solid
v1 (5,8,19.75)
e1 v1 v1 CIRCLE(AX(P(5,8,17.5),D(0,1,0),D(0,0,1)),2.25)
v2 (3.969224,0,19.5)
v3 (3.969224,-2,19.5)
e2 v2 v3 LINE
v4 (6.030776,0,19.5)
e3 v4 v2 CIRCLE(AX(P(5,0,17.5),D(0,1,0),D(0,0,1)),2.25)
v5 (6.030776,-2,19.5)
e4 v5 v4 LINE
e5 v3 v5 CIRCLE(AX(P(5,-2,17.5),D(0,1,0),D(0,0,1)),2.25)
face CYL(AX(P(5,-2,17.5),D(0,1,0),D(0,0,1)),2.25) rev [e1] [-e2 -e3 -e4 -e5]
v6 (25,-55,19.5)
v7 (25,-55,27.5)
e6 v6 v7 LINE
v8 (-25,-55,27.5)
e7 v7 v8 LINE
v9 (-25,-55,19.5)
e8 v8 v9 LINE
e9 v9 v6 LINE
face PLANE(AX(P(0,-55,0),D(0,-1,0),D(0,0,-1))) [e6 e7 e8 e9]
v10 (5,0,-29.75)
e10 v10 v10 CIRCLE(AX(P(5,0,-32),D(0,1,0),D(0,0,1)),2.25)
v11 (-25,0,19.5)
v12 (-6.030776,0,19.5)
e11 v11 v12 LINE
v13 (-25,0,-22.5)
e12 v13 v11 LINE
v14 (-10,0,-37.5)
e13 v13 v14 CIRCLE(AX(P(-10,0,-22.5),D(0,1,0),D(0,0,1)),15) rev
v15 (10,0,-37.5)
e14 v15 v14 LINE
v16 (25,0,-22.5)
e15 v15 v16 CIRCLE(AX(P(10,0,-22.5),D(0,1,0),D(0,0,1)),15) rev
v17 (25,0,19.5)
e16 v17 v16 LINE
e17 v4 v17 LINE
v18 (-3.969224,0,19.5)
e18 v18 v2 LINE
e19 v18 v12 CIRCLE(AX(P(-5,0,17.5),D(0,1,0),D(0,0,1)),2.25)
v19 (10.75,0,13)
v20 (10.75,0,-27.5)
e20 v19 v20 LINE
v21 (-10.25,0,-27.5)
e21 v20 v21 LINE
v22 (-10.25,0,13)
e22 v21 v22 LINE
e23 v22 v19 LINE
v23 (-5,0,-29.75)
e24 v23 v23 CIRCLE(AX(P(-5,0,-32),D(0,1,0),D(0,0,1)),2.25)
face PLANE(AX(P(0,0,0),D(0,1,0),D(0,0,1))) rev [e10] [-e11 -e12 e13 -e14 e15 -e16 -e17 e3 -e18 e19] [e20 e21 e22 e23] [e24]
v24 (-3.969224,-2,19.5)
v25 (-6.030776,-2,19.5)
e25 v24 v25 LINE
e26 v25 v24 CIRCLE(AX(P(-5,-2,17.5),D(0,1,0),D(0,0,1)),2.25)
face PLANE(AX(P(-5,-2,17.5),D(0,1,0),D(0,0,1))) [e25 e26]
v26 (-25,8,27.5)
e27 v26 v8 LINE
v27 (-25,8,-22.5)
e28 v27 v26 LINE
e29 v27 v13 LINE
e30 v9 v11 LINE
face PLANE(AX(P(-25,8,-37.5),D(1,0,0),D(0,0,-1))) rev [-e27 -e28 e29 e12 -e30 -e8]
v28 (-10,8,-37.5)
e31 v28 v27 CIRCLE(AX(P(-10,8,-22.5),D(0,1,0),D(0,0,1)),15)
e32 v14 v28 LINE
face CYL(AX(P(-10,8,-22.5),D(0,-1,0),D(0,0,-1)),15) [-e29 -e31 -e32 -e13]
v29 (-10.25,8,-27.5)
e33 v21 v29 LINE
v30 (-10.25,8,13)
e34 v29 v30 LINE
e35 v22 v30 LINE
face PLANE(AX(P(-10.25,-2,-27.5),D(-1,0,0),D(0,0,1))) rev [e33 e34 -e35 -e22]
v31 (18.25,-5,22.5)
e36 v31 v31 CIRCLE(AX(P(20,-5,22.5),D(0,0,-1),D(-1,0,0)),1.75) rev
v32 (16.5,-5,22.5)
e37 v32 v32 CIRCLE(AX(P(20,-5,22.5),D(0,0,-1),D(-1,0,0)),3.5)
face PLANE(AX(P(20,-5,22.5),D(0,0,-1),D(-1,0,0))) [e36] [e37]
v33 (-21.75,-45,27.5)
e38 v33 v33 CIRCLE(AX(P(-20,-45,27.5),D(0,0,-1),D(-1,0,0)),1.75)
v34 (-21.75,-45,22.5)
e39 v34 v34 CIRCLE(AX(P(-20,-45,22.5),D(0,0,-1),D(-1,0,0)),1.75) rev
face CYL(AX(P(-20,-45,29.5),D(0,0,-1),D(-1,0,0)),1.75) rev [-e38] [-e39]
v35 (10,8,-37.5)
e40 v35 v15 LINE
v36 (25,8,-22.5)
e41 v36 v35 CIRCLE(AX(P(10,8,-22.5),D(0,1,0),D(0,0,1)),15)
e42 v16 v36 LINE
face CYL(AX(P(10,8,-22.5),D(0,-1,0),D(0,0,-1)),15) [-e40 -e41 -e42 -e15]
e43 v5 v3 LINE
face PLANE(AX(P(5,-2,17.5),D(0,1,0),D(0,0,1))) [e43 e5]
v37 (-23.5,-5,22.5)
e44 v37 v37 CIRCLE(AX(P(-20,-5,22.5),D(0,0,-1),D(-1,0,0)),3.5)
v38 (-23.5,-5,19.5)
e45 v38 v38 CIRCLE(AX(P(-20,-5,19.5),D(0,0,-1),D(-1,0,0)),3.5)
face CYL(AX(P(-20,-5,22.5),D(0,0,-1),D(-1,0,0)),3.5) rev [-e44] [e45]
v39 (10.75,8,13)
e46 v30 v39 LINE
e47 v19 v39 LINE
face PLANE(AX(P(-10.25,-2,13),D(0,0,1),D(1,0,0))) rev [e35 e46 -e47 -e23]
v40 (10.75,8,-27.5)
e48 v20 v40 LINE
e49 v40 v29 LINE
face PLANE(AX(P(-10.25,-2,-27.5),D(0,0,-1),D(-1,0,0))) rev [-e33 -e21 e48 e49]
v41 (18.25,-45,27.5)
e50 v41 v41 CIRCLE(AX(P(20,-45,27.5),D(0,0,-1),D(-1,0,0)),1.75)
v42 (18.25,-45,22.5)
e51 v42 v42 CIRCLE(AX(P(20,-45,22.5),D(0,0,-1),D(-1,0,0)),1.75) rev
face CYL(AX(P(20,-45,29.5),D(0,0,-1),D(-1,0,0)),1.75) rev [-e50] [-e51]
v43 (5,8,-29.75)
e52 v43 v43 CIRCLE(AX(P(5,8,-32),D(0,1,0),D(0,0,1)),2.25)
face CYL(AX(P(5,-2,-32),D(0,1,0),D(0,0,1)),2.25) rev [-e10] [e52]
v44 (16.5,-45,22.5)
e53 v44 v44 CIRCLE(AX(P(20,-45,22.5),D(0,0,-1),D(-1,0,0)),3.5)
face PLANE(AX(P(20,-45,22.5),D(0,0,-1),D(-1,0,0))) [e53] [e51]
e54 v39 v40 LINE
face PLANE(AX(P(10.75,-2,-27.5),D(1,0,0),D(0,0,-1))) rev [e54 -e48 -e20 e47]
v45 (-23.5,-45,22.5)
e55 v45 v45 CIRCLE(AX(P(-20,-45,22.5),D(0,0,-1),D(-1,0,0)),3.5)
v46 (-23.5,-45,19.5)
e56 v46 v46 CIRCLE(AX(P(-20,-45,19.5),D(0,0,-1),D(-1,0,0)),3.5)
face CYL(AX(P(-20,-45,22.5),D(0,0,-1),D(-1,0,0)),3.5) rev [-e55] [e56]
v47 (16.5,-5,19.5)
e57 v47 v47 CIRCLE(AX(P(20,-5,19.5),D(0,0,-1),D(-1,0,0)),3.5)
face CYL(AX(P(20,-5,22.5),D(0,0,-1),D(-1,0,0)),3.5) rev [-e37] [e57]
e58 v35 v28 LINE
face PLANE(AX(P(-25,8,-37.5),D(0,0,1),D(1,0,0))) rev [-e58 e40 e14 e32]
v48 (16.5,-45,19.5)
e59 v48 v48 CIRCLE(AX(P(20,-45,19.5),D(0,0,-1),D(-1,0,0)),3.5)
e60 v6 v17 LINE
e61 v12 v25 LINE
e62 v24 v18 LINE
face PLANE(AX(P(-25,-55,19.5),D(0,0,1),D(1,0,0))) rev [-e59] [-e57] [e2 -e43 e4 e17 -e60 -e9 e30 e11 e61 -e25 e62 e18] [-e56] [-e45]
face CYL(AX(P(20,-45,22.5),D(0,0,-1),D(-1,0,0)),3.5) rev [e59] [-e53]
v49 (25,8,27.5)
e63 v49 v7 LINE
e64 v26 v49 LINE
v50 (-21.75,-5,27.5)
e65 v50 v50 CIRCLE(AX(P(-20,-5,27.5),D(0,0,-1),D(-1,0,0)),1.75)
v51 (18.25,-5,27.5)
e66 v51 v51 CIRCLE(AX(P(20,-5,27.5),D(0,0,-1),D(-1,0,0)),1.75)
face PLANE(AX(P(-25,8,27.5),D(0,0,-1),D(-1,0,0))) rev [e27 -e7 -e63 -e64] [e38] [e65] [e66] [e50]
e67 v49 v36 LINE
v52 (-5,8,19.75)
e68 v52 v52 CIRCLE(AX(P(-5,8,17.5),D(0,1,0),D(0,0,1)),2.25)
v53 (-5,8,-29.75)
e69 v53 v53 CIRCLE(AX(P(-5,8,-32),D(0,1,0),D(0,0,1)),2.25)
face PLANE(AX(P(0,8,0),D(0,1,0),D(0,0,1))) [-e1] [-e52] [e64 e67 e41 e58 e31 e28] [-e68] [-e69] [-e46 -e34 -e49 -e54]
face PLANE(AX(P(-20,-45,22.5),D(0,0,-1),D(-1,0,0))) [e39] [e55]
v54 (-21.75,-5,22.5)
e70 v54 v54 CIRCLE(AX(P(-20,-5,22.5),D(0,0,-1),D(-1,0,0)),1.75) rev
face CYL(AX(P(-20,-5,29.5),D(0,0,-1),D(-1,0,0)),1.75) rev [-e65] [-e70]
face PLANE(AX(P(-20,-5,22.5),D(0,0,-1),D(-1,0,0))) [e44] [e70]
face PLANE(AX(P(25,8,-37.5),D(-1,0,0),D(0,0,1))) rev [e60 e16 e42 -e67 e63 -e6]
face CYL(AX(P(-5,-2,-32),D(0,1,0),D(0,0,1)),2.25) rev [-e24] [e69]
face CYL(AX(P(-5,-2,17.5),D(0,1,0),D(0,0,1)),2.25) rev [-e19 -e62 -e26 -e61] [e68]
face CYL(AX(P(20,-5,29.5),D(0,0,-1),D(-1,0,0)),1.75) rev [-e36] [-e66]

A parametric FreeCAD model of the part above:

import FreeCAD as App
import Part
import Sketcher

V = App.Vector


def edges_at(feature, points):
    """Names of the edges that pass closest to the given points."""
    edges = feature.Shape.Edges
    near = lambda p: min(range(len(edges)), key=lambda i: edges[i].distToShape(Part.Vertex(*p))[0])
    return sorted({f"Edge{near(p) + 1}" for p in points})

doc = App.newDocument("Part")
body = doc.addObject("PartDesign::Body", "Body")

# Sketch on XZ plane
sketch1 = body.newObject("Sketcher::SketchObject", "Sketch")
sketch1.AttachmentSupport = (doc.getObject("XZ_Plane"), [""])
sketch1.MapMode = "FlatFace"
sketch1.addGeometry([
    Part.LineSegment(V(-25, -37.5, 0), V(-25, 27.5, 0)),
    Part.LineSegment(V(-25, 27.5, 0), V(25, 27.5, 0)),
    Part.LineSegment(V(25, 27.5, 0), V(25, -37.5, 0)),
    Part.LineSegment(V(25, -37.5, 0), V(-25, -37.5, 0)),
], False)
sketch1.addConstraint([
    Sketcher.Constraint("Coincident", 0, 2, 1, 1),
    Sketcher.Constraint("Coincident", 1, 2, 2, 1),
    Sketcher.Constraint("Coincident", 2, 2, 3, 1),
    Sketcher.Constraint("Coincident", 3, 2, 0, 1),
    Sketcher.Constraint("Vertical", 0),
    Sketcher.Constraint("Horizontal", 1),
    Sketcher.Constraint("Vertical", 2),
    Sketcher.Constraint("Horizontal", 3),
    Sketcher.Constraint("DistanceX", 1, 1, 1, 2, 50.0),
    Sketcher.Constraint("DistanceY", 0, 1, 0, 2, 65.0),
    Sketcher.Constraint("DistanceX", 0, 2, -1, 1, 25.0),
    Sketcher.Constraint("DistanceY", -1, 1, 0, 2, 27.5),
])
pad1 = body.newObject("PartDesign::Pad", "Pad")
pad1.Profile = sketch1
pad1.Length = 8
pad1.Reversed = True

# Sketch on XZ plane
sketch2 = body.newObject("Sketcher::SketchObject", "Sketch001")
sketch2.AttachmentSupport = (doc.getObject("XZ_Plane"), [""])
sketch2.MapMode = "FlatFace"
sketch2.addGeometry([
    Part.LineSegment(V(25, 19.5, 0), V(25, 27.5, 0)),
    Part.LineSegment(V(25, 27.5, 0), V(-25, 27.5, 0)),
    Part.LineSegment(V(-25, 27.5, 0), V(-25, 19.5, 0)),
    Part.LineSegment(V(-25, 19.5, 0), V(25, 19.5, 0)),
], False)
sketch2.addConstraint([
    Sketcher.Constraint("Coincident", 0, 2, 1, 1),
    Sketcher.Constraint("Coincident", 1, 2, 2, 1),
    Sketcher.Constraint("Coincident", 2, 2, 3, 1),
    Sketcher.Constraint("Coincident", 3, 2, 0, 1),
    Sketcher.Constraint("Vertical", 0),
    Sketcher.Constraint("Horizontal", 1),
    Sketcher.Constraint("Vertical", 2),
    Sketcher.Constraint("Horizontal", 3),
    Sketcher.Constraint("DistanceX", 1, 2, 1, 1, 50.0),
    Sketcher.Constraint("DistanceY", 0, 1, 0, 2, 8.0),
    Sketcher.Constraint("DistanceX", -1, 1, 0, 2, 25.0),
    Sketcher.Constraint("DistanceY", -1, 1, 0, 2, 27.5),
])
pad2 = body.newObject("PartDesign::Pad", "Pad001")
pad2.Profile = sketch2
pad2.Length = 55

# Sketch on XY plane
sketch3 = body.newObject("Sketcher::SketchObject", "Sketch002")
sketch3.AttachmentSupport = (doc.getObject("XY_Plane"), [""])
sketch3.MapMode = "FlatFace"
sketch3.AttachmentOffset = App.Placement(V(0, 0, 19.5), App.Rotation())
sketch3.addGeometry([
    Part.Circle(V(20, -5, 0), V(0, 0, 1), 1.75),
    Part.Circle(V(-20, -5, 0), V(0, 0, 1), 1.75),
    Part.Circle(V(20, -45, 0), V(0, 0, 1), 1.75),
    Part.Circle(V(-20, -45, 0), V(0, 0, 1), 1.75),
], False)
sketch3.addConstraint([
    Sketcher.Constraint("Equal", 0, 1),
    Sketcher.Constraint("Equal", 1, 2),
    Sketcher.Constraint("Equal", 2, 3),
    Sketcher.Constraint("Symmetric", 0, 3, 1, 3, -2),
    Sketcher.Constraint("Symmetric", 2, 3, 3, 3, -2),
    Sketcher.Constraint("Vertical", 0, 3, 2, 3),
    Sketcher.Constraint("Diameter", 0, 3.5),
    Sketcher.Constraint("DistanceX", -1, 1, 0, 3, 20.0),
    Sketcher.Constraint("DistanceY", 0, 3, -1, 1, 5.0),
    Sketcher.Constraint("DistanceY", 2, 3, -1, 1, 45.0),
])
pocket1 = body.newObject("PartDesign::Pocket", "Pocket")
pocket1.Profile = sketch3
pocket1.Length = 10
pocket1.Reversed = True

# Sketch on XY plane
sketch4 = body.newObject("Sketcher::SketchObject", "Sketch003")
sketch4.AttachmentSupport = (doc.getObject("XY_Plane"), [""])
sketch4.MapMode = "FlatFace"
sketch4.AttachmentOffset = App.Placement(V(0, 0, 19.5), App.Rotation())
sketch4.addGeometry([
    Part.Circle(V(20, -5, 0), V(0, 0, 1), 3.5),
    Part.Circle(V(-20, -5, 0), V(0, 0, 1), 3.5),
    Part.Circle(V(-20, -45, 0), V(0, 0, 1), 3.5),
    Part.Circle(V(20, -45, 0), V(0, 0, 1), 3.5),
], False)
sketch4.addConstraint([
    Sketcher.Constraint("Equal", 0, 1),
    Sketcher.Constraint("Equal", 1, 2),
    Sketcher.Constraint("Equal", 2, 3),
    Sketcher.Constraint("Symmetric", 0, 3, 1, 3, -2),
    Sketcher.Constraint("Symmetric", 2, 3, 3, 3, -2),
    Sketcher.Constraint("Vertical", 1, 3, 2, 3),
    Sketcher.Constraint("Diameter", 0, 7.0),
    Sketcher.Constraint("DistanceX", -1, 1, 0, 3, 20.0),
    Sketcher.Constraint("DistanceY", 0, 3, -1, 1, 5.0),
    Sketcher.Constraint("DistanceY", 2, 3, -1, 1, 45.0),
])
pocket2 = body.newObject("PartDesign::Pocket", "Pocket001")
pocket2.Profile = sketch4
pocket2.Length = 3
pocket2.Reversed = True

# Sketch on XZ plane
sketch5 = body.newObject("Sketcher::SketchObject", "Sketch004")
sketch5.AttachmentSupport = (doc.getObject("XZ_Plane"), [""])
sketch5.MapMode = "FlatFace"
sketch5.AttachmentOffset = App.Placement(V(0, 0, -8), App.Rotation())
sketch5.addGeometry([
    Part.LineSegment(V(-10.25, -27.5, 0), V(-10.25, 13, 0)),
    Part.LineSegment(V(-10.25, 13, 0), V(10.75, 13, 0)),
    Part.LineSegment(V(10.75, 13, 0), V(10.75, -27.5, 0)),
    Part.LineSegment(V(10.75, -27.5, 0), V(-10.25, -27.5, 0)),
], False)
sketch5.addConstraint([
    Sketcher.Constraint("Coincident", 0, 2, 1, 1),
    Sketcher.Constraint("Coincident", 1, 2, 2, 1),
    Sketcher.Constraint("Coincident", 2, 2, 3, 1),
    Sketcher.Constraint("Coincident", 3, 2, 0, 1),
    Sketcher.Constraint("Vertical", 0),
    Sketcher.Constraint("Horizontal", 1),
    Sketcher.Constraint("Vertical", 2),
    Sketcher.Constraint("Horizontal", 3),
    Sketcher.Constraint("DistanceX", 1, 1, 1, 2, 21.0),
    Sketcher.Constraint("DistanceY", 0, 1, 0, 2, 40.5),
    Sketcher.Constraint("DistanceY", -1, 1, 0, 2, 13.0),
    Sketcher.Constraint("DistanceX", 0, 2, -1, 1, 10.25),
])
pocket3 = body.newObject("PartDesign::Pocket", "Pocket002")
pocket3.Profile = sketch5
pocket3.Length = 10
pocket3.Reversed = True

# Sketch on XZ plane
sketch6 = body.newObject("Sketcher::SketchObject", "Sketch005")
sketch6.AttachmentSupport = (doc.getObject("XZ_Plane"), [""])
sketch6.MapMode = "FlatFace"
sketch6.AttachmentOffset = App.Placement(V(0, 0, -8), App.Rotation())
sketch6.addGeometry([
    Part.Circle(V(-5, -32, 0), V(0, 0, 1), 2.25),
    Part.Circle(V(5, -32, 0), V(0, 0, 1), 2.25),
    Part.Circle(V(-5, 17.5, 0), V(0, 0, 1), 2.25),
    Part.Circle(V(5, 17.5, 0), V(0, 0, 1), 2.25),
], False)
sketch6.addConstraint([
    Sketcher.Constraint("Equal", 0, 1),
    Sketcher.Constraint("Equal", 1, 2),
    Sketcher.Constraint("Equal", 2, 3),
    Sketcher.Constraint("Symmetric", 0, 3, 1, 3, -2),
    Sketcher.Constraint("Symmetric", 2, 3, 3, 3, -2),
    Sketcher.Constraint("Vertical", 0, 3, 2, 3),
    Sketcher.Constraint("Diameter", 0, 4.5),
    Sketcher.Constraint("DistanceX", 0, 3, -1, 1, 5.0),
    Sketcher.Constraint("DistanceY", 0, 3, -1, 1, 32.0),
    Sketcher.Constraint("DistanceY", -1, 1, 2, 3, 17.5),
])
pocket4 = body.newObject("PartDesign::Pocket", "Pocket003")
pocket4.Profile = sketch6
pocket4.Length = 10
pocket4.Reversed = True
doc.recompute()

fillet = body.newObject("PartDesign::Fillet", "Fillet")
fillet.Base = (pocket4, edges_at(pocket4, [(25, 4, -37.5)]))
fillet.Radius = 15
doc.recompute()

fillet2 = body.newObject("PartDesign::Fillet", "Fillet001")
fillet2.Base = (fillet, edges_at(fillet, [(-25, 4, -37.5)]))
fillet2.Radius = 15

doc.recompute()
